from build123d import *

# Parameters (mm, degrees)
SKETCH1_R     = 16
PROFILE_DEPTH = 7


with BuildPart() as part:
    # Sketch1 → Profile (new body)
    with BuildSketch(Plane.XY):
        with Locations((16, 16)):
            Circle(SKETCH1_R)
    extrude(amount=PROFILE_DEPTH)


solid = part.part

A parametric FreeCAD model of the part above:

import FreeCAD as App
import Part
import Sketcher

V = App.Vector
Q = App.Units.Quantity

doc = App.newDocument("Part")
params = doc.addObject("Spreadsheet::Sheet", "Params")
for row, (alias, value) in enumerate([
    ("sketch1_diameter", "32 mm"),
    ("pad1_length", "7 mm"),
], start=1):
    params.set(f"A{row}", alias)
    params.set(f"B{row}", "=" + value)
    params.setAlias(f"B{row}", alias)

body = doc.addObject("PartDesign::Body", "Body")

# Sketch on XY plane
sketch1 = body.newObject("Sketcher::SketchObject", "Sketch")
sketch1.AttachmentSupport = (doc.getObject("XY_Plane"), [""])
sketch1.MapMode = "FlatFace"
sketch1.addGeometry(Part.Circle(V(16, 16, 0), V(0, 0, 1), 16), False)
sketch1.addConstraint([
    Sketcher.Constraint("Diameter", 0, Q("32 mm")),
    Sketcher.Constraint("DistanceX", -1, 1, 0, 3, Q("16 mm")),
    Sketcher.Constraint("DistanceY", -1, 1, 0, 3, Q("16 mm")),
])
sketch1.setExpression("Constraints[0]", "Params.sketch1_diameter")
pad1 = body.newObject("PartDesign::Pad", "Pad")
pad1.Profile = sketch1
pad1.setExpression("Length", "Params.pad1_length")

doc.recompute()
